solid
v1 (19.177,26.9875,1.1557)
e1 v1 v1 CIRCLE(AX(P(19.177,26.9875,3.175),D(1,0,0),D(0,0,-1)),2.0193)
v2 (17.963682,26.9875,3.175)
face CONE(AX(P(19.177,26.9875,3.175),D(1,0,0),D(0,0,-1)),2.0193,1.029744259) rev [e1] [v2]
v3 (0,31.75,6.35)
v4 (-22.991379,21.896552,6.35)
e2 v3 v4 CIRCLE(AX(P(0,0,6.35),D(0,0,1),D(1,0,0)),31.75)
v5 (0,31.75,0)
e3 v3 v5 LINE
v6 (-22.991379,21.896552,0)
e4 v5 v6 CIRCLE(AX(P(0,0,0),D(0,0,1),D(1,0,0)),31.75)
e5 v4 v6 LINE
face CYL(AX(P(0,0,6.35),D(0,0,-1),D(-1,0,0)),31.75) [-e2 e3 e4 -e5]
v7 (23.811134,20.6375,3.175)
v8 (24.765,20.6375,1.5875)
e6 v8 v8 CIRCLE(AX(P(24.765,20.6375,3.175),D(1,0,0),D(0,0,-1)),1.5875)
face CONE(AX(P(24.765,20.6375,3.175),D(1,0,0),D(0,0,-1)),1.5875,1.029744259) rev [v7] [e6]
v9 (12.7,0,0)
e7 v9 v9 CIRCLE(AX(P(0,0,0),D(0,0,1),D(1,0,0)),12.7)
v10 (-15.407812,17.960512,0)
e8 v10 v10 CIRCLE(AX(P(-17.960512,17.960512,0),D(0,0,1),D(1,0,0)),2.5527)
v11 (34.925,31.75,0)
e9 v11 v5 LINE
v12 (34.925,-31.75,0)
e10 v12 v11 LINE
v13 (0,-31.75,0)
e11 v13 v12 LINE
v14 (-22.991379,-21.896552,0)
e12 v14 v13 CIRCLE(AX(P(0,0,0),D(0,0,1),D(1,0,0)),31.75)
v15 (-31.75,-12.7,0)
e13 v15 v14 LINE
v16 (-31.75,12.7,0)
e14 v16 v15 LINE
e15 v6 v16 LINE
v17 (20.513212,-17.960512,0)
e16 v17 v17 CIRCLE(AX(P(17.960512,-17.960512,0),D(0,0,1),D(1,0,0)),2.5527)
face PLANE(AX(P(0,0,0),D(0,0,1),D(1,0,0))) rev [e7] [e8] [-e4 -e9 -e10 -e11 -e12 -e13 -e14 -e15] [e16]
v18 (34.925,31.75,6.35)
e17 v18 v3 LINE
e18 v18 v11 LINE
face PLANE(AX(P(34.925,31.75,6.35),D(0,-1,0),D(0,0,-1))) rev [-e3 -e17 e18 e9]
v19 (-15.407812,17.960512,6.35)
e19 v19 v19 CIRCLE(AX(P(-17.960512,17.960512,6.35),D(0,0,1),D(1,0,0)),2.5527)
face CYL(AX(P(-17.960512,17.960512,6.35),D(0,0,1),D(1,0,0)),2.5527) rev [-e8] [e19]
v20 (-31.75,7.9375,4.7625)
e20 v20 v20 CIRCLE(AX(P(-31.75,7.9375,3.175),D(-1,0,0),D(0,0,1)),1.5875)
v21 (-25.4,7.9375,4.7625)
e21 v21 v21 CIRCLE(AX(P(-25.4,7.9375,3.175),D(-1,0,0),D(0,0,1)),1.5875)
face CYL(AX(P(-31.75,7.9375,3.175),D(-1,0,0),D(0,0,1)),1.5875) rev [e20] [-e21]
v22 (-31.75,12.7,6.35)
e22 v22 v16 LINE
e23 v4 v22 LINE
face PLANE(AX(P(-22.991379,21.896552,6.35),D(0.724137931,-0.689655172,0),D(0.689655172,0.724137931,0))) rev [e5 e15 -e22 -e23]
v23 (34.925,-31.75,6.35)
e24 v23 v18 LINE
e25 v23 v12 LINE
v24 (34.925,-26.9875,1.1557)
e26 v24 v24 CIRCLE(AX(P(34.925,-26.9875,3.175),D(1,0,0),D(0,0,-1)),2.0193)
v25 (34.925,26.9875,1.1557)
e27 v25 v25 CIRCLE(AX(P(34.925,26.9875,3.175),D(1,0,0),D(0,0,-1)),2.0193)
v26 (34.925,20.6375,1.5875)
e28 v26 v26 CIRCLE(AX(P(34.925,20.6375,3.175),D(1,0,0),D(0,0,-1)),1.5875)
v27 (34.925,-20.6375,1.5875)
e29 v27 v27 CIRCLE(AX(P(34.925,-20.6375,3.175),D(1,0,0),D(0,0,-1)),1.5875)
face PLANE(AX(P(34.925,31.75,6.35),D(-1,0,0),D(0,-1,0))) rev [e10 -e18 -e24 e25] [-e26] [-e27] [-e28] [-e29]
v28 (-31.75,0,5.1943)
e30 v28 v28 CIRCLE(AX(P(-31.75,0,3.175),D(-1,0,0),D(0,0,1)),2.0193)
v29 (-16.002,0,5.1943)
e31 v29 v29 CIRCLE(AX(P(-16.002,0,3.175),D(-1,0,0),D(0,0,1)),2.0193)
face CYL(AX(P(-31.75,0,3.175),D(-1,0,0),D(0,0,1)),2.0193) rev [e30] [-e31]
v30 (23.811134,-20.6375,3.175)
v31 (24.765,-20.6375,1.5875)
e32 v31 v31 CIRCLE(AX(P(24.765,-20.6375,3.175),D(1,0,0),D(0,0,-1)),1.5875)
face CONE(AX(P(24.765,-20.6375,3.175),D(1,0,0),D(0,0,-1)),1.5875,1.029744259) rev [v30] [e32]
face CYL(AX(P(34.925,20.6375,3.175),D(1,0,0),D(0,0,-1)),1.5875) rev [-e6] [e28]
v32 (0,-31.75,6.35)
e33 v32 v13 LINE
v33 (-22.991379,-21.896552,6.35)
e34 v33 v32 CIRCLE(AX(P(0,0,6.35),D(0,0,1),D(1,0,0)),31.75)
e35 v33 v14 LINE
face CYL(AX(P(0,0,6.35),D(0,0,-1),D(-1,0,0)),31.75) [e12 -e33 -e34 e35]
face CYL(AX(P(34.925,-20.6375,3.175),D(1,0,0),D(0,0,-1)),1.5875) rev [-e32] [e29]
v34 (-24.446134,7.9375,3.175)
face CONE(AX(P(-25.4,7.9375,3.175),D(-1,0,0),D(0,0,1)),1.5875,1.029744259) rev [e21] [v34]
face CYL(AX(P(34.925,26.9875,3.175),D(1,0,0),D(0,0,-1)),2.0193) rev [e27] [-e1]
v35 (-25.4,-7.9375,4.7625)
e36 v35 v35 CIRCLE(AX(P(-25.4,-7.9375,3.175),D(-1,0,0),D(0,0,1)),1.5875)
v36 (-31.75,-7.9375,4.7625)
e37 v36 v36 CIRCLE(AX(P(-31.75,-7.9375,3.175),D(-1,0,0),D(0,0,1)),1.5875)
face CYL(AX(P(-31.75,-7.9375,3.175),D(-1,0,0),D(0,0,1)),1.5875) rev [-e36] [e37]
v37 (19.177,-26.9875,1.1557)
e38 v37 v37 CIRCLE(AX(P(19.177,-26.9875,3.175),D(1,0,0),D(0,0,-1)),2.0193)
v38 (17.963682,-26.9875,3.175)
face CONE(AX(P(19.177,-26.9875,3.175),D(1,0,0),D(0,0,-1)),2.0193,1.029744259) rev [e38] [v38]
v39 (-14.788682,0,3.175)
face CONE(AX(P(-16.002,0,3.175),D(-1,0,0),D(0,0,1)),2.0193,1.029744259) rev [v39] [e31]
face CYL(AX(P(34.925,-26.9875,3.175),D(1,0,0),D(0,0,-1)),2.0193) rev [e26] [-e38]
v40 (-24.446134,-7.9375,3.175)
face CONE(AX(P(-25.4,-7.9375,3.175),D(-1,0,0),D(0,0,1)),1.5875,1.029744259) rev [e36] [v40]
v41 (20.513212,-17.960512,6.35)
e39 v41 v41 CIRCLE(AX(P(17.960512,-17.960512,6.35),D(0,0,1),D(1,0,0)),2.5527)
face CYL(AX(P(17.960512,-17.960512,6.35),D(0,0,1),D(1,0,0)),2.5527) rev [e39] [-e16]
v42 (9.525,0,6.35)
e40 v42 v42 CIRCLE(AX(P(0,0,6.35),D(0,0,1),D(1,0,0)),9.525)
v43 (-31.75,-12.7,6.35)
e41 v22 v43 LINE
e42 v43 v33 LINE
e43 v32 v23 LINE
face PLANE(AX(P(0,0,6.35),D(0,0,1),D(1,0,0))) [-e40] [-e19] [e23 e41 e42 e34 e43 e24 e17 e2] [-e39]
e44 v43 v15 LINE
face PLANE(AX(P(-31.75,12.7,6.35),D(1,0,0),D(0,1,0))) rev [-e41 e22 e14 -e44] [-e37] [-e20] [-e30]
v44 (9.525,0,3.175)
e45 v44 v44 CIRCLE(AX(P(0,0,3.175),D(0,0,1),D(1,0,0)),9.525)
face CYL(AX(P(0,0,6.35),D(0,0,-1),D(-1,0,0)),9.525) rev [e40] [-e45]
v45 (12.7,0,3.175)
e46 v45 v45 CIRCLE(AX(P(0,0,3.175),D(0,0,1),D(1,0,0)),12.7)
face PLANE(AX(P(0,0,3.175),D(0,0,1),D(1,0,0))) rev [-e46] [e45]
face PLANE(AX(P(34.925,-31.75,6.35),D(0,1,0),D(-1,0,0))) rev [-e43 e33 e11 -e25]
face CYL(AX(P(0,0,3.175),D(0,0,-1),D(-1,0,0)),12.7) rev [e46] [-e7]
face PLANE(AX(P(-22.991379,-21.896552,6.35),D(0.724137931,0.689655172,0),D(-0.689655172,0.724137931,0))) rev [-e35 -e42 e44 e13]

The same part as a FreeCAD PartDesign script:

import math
import FreeCAD as App
import Part
import Sketcher
Q = App.Units.Quantity

doc = App.newDocument("Part")
body = doc.addObject("PartDesign::Body", "Body")

sketch1 = doc.addObject("Sketcher::SketchObject", "Sketch")
body.addObject(sketch1)
sketch1.AttachmentSupport = (doc.XY_Plane, [""])
sketch1.MapMode = "FlatFace"
sketch1.addGeometry([
    Part.LineSegment(App.Vector(35, -32, 0), App.Vector(35, 32, 0)),
    Part.LineSegment(App.Vector(35, 32, 0), App.Vector(0, 32, 0)),
    Part.ArcOfCircle(Part.Circle(App.Vector(0, 0, 0), App.Vector(0, 0, 1), 32), math.radians(90), math.radians(136)),
    Part.LineSegment(App.Vector(-23, 22, 0), App.Vector(-32, 13, 0)),
    Part.LineSegment(App.Vector(-32, 13, 0), App.Vector(-32, -13, 0)),
    Part.LineSegment(App.Vector(-32, -13, 0), App.Vector(-23, -22, 0)),
    Part.ArcOfCircle(Part.Circle(App.Vector(0, 0, 0), App.Vector(0, 0, 1), 32), math.radians(-136), math.radians(-90)),
    Part.LineSegment(App.Vector(0, -32, 0), App.Vector(35, -32, 0)),
    Part.Circle(App.Vector(0, 0, 0), App.Vector(0, 0, 1), 10),
], False)
sketch1.addConstraint([
    Sketcher.Constraint("Coincident", 0, 2, 1, 1),
    Sketcher.Constraint("Tangent", 1, 2, 2, 1),
    Sketcher.Constraint("Tangent", 2, 2, 3, 1),
    Sketcher.Constraint("Coincident", 3, 2, 4, 1),
    Sketcher.Constraint("Coincident", 4, 2, 5, 1),
    Sketcher.Constraint("Tangent", 5, 2, 6, 1),
    Sketcher.Constraint("Tangent", 6, 2, 7, 1),
    Sketcher.Constraint("Coincident", 7, 2, 0, 1),
    Sketcher.Constraint("Vertical", 0),
    Sketcher.Constraint("Horizontal", 1),
    Sketcher.Constraint("Vertical", 4),
    Sketcher.Constraint("Horizontal", 7),
    Sketcher.Constraint("Coincident", 2, 3, -1, 1),
    Sketcher.Constraint("Coincident", 6, 3, -1, 1),
    Sketcher.Constraint("Coincident", 8, 3, -1, 1),
    Sketcher.Constraint("Equal", 2, 6),
    Sketcher.Constraint("Vertical", 2, 2, 5, 2),
    Sketcher.Constraint("Diameter", 8, Q("0.75 in")),
    Sketcher.Constraint("DistanceY", 4, 2, 4, 1, Q("1 in")),
    Sketcher.Constraint("Radius", 2, Q("1.25 in")),
    Sketcher.Constraint("Distance", 3, Q("0.5 in")),
    Sketcher.Constraint("DistanceX", 1, 2, 1, 1, Q("1.375 in")),
])
pad1 = doc.addObject("PartDesign::Pad", "Pad")
body.addObject(pad1)
pad1.Profile = sketch1
pad1.Length = Q("0.25 in")

sketch2 = doc.addObject("Sketcher::SketchObject", "Sketch001")
body.addObject(sketch2)
sketch2.AttachmentSupport = (doc.XY_Plane, [""])
sketch2.MapMode = "FlatFace"
sketch2.AttachmentOffset = App.Placement(App.Vector(0, 0, 0.25 * 25.4), App.Rotation())
sketch2.addGeometry([
    Part.Circle(App.Vector(18, -18, 0), App.Vector(0, 0, 1), 2.6),
    Part.Circle(App.Vector(-18, 18, 0), App.Vector(0, 0, 1), 2.6),
], False)
sketch2.addConstraint([
    Sketcher.Constraint("Equal", 0, 1),
    Sketcher.Constraint("Symmetric", 0, 3, 1, 3, -1, 1),
    Sketcher.Constraint("Diameter", 0, Q("0.201 in")),
    Sketcher.Constraint("DistanceX", -1, 1, 0, 3, 17.960512),
    Sketcher.Constraint("DistanceY", 0, 3, -1, 1, 17.960512),
])
doc.recompute()
hole = doc.addObject("PartDesign::Hole", "Hole")
body.addObject(hole)
hole.Profile = sketch2
hole.ThreadType = "None"
hole.Diameter = Q("0.201 in")
hole.DepthType = "ThroughAll"

sketch3 = doc.addObject("Sketcher::SketchObject", "Sketch002")
body.addObject(sketch3)
sketch3.AttachmentSupport = (doc.YZ_Plane, [""])
sketch3.MapMode = "FlatFace"
sketch3.AttachmentOffset = App.Placement(App.Vector(0, 0, 1.375 * 25.4), App.Rotation())
sketch3.addGeometry([
    Part.Circle(App.Vector(20.6, 3.2, 0), App.Vector(0, 0, 1), 1.6),
    Part.Circle(App.Vector(-20.6, 3.2, 0), App.Vector(0, 0, 1), 1.6),
], False)
sketch3.addConstraint([
    Sketcher.Constraint("Equal", 0, 1),
    Sketcher.Constraint("Symmetric", 0, 3, 1, 3, -2),
    Sketcher.Constraint("Diameter", 0, Q("0.125 in")),
    Sketcher.Constraint("DistanceX", -1, 1, 0, 3, Q("0.8125 in")),
    Sketcher.Constraint("DistanceY", -1, 1, 0, 3, Q("0.125 in")),
])
doc.recompute()
hole2 = doc.addObject("PartDesign::Hole", "Hole001")
body.addObject(hole2)
hole2.Profile = sketch3
hole2.ThreadType = "None"
hole2.Diameter = Q("0.125 in")
hole2.DepthType = "Dimension"
hole2.Depth = Q("0.4 in")
hole2.DrillPoint = "Angled"
hole2.DrillPointAngle = 118

sketch4 = doc.addObject("Sketcher::SketchObject", "Sketch003")
body.addObject(sketch4)
sketch4.AttachmentSupport = (doc.XY_Plane, [""])
sketch4.MapMode = "FlatFace"
sketch4.addGeometry(Part.Circle(App.Vector(0, 0, 0), App.Vector(0, 0, 1), 13), False)
sketch4.addConstraint([
    Sketcher.Constraint("Coincident", 0, 3, -1, 1),
    Sketcher.Constraint("Diameter", 0, Q("1 in")),
])
pocket1 = doc.addObject("PartDesign::Pocket", "Pocket")
body.addObject(pocket1)
pocket1.Profile = sketch4
pocket1.Length = Q("0.125 in")
pocket1.Reversed = True

sketch5 = doc.addObject("Sketcher::SketchObject", "Sketch004")
body.addObject(sketch5)
sketch5.AttachmentSupport = (doc.YZ_Plane, [""])
sketch5.MapMode = "FlatFace"
sketch5.AttachmentOffset = App.Placement(App.Vector(0, 0, 1.375 * 25.4), App.Rotation())
sketch5.addGeometry([
    Part.Circle(App.Vector(27, 3.2, 0), App.Vector(0, 0, 1), 2),
    Part.Circle(App.Vector(-27, 3.2, 0), App.Vector(0, 0, 1), 2),
], False)
sketch5.addConstraint([
    Sketcher.Constraint("Equal", 0, 1),
    Sketcher.Constraint("Symmetric", 0, 3, 1, 3, -2),
    Sketcher.Constraint("Diameter", 0, Q("0.159 in")),
    Sketcher.Constraint("DistanceX", -1, 1, 0, 3, Q("1.0625 in")),
    Sketcher.Constraint("DistanceY", -1, 1, 0, 3, Q("0.125 in")),
])
doc.recompute()
hole3 = doc.addObject("PartDesign::Hole", "Hole002")
body.addObject(hole3)
hole3.Profile = sketch5
hole3.ThreadType = "None"
hole3.Diameter = Q("0.159 in")
hole3.DepthType = "Dimension"
hole3.Depth = Q("0.62 in")
hole3.DrillPoint = "Angled"
hole3.DrillPointAngle = 118

sketch6 = doc.addObject("Sketcher::SketchObject", "Sketch005")
body.addObject(sketch6)
sketch6.AttachmentSupport = (doc.YZ_Plane, [""])
sketch6.MapMode = "FlatFace"
sketch6.AttachmentOffset = App.Placement(App.Vector(0, 0, -1.25 * 25.4), App.Rotation())
sketch6.addGeometry([
    Part.Circle(App.Vector(7.9, 3.2, 0), App.Vector(0, 0, 1), 1.6),
    Part.Circle(App.Vector(-7.9, 3.2, 0), App.Vector(0, 0, 1), 1.6),
], False)
sketch6.addConstraint([
    Sketcher.Constraint("Equal", 0, 1),
    Sketcher.Constraint("Symmetric", 0, 3, 1, 3, -2),
    Sketcher.Constraint("Diameter", 0, Q("0.125 in")),
    Sketcher.Constraint("DistanceX", -1, 1, 0, 3, Q("0.3125 in")),
    Sketcher.Constraint("DistanceY", -1, 1, 0, 3, Q("0.125 in")),
])
doc.recompute()
hole4 = doc.addObject("PartDesign::Hole", "Hole003")
body.addObject(hole4)
hole4.Profile = sketch6
hole4.ThreadType = "None"
hole4.Diameter = Q("0.125 in")
hole4.DepthType = "Dimension"
hole4.Depth = Q("0.25 in")
hole4.DrillPoint = "Angled"
hole4.DrillPointAngle = 118
hole4.Reversed = True

sketch7 = doc.addObject("Sketcher::SketchObject", "Sketch006")
body.addObject(sketch7)
sketch7.AttachmentSupport = (doc.YZ_Plane, [""])
sketch7.MapMode = "FlatFace"
sketch7.AttachmentOffset = App.Placement(App.Vector(0, 0, -1.25 * 25.4), App.Rotation())
sketch7.addGeometry(Part.Circle(App.Vector(0, 3.2, 0), App.Vector(0, 0, 1), 2), False)
sketch7.addConstraint([
    Sketcher.Constraint("PointOnObject", 0, 3, -2),
    Sketcher.Constraint("Diameter", 0, Q("0.159 in")),
    Sketcher.Constraint("DistanceY", -1, 1, 0, 3, Q("0.125 in")),
])
doc.recompute()
hole5 = doc.addObject("PartDesign::Hole", "Hole004")
body.addObject(hole5)
hole5.Profile = sketch7
hole5.ThreadType = "None"
hole5.Diameter = Q("0.159 in")
hole5.DepthType = "Dimension"
hole5.Depth = Q("0.62 in")
hole5.DrillPoint = "Angled"
hole5.DrillPointAngle = 118
hole5.Reversed = True

doc.recompute()
